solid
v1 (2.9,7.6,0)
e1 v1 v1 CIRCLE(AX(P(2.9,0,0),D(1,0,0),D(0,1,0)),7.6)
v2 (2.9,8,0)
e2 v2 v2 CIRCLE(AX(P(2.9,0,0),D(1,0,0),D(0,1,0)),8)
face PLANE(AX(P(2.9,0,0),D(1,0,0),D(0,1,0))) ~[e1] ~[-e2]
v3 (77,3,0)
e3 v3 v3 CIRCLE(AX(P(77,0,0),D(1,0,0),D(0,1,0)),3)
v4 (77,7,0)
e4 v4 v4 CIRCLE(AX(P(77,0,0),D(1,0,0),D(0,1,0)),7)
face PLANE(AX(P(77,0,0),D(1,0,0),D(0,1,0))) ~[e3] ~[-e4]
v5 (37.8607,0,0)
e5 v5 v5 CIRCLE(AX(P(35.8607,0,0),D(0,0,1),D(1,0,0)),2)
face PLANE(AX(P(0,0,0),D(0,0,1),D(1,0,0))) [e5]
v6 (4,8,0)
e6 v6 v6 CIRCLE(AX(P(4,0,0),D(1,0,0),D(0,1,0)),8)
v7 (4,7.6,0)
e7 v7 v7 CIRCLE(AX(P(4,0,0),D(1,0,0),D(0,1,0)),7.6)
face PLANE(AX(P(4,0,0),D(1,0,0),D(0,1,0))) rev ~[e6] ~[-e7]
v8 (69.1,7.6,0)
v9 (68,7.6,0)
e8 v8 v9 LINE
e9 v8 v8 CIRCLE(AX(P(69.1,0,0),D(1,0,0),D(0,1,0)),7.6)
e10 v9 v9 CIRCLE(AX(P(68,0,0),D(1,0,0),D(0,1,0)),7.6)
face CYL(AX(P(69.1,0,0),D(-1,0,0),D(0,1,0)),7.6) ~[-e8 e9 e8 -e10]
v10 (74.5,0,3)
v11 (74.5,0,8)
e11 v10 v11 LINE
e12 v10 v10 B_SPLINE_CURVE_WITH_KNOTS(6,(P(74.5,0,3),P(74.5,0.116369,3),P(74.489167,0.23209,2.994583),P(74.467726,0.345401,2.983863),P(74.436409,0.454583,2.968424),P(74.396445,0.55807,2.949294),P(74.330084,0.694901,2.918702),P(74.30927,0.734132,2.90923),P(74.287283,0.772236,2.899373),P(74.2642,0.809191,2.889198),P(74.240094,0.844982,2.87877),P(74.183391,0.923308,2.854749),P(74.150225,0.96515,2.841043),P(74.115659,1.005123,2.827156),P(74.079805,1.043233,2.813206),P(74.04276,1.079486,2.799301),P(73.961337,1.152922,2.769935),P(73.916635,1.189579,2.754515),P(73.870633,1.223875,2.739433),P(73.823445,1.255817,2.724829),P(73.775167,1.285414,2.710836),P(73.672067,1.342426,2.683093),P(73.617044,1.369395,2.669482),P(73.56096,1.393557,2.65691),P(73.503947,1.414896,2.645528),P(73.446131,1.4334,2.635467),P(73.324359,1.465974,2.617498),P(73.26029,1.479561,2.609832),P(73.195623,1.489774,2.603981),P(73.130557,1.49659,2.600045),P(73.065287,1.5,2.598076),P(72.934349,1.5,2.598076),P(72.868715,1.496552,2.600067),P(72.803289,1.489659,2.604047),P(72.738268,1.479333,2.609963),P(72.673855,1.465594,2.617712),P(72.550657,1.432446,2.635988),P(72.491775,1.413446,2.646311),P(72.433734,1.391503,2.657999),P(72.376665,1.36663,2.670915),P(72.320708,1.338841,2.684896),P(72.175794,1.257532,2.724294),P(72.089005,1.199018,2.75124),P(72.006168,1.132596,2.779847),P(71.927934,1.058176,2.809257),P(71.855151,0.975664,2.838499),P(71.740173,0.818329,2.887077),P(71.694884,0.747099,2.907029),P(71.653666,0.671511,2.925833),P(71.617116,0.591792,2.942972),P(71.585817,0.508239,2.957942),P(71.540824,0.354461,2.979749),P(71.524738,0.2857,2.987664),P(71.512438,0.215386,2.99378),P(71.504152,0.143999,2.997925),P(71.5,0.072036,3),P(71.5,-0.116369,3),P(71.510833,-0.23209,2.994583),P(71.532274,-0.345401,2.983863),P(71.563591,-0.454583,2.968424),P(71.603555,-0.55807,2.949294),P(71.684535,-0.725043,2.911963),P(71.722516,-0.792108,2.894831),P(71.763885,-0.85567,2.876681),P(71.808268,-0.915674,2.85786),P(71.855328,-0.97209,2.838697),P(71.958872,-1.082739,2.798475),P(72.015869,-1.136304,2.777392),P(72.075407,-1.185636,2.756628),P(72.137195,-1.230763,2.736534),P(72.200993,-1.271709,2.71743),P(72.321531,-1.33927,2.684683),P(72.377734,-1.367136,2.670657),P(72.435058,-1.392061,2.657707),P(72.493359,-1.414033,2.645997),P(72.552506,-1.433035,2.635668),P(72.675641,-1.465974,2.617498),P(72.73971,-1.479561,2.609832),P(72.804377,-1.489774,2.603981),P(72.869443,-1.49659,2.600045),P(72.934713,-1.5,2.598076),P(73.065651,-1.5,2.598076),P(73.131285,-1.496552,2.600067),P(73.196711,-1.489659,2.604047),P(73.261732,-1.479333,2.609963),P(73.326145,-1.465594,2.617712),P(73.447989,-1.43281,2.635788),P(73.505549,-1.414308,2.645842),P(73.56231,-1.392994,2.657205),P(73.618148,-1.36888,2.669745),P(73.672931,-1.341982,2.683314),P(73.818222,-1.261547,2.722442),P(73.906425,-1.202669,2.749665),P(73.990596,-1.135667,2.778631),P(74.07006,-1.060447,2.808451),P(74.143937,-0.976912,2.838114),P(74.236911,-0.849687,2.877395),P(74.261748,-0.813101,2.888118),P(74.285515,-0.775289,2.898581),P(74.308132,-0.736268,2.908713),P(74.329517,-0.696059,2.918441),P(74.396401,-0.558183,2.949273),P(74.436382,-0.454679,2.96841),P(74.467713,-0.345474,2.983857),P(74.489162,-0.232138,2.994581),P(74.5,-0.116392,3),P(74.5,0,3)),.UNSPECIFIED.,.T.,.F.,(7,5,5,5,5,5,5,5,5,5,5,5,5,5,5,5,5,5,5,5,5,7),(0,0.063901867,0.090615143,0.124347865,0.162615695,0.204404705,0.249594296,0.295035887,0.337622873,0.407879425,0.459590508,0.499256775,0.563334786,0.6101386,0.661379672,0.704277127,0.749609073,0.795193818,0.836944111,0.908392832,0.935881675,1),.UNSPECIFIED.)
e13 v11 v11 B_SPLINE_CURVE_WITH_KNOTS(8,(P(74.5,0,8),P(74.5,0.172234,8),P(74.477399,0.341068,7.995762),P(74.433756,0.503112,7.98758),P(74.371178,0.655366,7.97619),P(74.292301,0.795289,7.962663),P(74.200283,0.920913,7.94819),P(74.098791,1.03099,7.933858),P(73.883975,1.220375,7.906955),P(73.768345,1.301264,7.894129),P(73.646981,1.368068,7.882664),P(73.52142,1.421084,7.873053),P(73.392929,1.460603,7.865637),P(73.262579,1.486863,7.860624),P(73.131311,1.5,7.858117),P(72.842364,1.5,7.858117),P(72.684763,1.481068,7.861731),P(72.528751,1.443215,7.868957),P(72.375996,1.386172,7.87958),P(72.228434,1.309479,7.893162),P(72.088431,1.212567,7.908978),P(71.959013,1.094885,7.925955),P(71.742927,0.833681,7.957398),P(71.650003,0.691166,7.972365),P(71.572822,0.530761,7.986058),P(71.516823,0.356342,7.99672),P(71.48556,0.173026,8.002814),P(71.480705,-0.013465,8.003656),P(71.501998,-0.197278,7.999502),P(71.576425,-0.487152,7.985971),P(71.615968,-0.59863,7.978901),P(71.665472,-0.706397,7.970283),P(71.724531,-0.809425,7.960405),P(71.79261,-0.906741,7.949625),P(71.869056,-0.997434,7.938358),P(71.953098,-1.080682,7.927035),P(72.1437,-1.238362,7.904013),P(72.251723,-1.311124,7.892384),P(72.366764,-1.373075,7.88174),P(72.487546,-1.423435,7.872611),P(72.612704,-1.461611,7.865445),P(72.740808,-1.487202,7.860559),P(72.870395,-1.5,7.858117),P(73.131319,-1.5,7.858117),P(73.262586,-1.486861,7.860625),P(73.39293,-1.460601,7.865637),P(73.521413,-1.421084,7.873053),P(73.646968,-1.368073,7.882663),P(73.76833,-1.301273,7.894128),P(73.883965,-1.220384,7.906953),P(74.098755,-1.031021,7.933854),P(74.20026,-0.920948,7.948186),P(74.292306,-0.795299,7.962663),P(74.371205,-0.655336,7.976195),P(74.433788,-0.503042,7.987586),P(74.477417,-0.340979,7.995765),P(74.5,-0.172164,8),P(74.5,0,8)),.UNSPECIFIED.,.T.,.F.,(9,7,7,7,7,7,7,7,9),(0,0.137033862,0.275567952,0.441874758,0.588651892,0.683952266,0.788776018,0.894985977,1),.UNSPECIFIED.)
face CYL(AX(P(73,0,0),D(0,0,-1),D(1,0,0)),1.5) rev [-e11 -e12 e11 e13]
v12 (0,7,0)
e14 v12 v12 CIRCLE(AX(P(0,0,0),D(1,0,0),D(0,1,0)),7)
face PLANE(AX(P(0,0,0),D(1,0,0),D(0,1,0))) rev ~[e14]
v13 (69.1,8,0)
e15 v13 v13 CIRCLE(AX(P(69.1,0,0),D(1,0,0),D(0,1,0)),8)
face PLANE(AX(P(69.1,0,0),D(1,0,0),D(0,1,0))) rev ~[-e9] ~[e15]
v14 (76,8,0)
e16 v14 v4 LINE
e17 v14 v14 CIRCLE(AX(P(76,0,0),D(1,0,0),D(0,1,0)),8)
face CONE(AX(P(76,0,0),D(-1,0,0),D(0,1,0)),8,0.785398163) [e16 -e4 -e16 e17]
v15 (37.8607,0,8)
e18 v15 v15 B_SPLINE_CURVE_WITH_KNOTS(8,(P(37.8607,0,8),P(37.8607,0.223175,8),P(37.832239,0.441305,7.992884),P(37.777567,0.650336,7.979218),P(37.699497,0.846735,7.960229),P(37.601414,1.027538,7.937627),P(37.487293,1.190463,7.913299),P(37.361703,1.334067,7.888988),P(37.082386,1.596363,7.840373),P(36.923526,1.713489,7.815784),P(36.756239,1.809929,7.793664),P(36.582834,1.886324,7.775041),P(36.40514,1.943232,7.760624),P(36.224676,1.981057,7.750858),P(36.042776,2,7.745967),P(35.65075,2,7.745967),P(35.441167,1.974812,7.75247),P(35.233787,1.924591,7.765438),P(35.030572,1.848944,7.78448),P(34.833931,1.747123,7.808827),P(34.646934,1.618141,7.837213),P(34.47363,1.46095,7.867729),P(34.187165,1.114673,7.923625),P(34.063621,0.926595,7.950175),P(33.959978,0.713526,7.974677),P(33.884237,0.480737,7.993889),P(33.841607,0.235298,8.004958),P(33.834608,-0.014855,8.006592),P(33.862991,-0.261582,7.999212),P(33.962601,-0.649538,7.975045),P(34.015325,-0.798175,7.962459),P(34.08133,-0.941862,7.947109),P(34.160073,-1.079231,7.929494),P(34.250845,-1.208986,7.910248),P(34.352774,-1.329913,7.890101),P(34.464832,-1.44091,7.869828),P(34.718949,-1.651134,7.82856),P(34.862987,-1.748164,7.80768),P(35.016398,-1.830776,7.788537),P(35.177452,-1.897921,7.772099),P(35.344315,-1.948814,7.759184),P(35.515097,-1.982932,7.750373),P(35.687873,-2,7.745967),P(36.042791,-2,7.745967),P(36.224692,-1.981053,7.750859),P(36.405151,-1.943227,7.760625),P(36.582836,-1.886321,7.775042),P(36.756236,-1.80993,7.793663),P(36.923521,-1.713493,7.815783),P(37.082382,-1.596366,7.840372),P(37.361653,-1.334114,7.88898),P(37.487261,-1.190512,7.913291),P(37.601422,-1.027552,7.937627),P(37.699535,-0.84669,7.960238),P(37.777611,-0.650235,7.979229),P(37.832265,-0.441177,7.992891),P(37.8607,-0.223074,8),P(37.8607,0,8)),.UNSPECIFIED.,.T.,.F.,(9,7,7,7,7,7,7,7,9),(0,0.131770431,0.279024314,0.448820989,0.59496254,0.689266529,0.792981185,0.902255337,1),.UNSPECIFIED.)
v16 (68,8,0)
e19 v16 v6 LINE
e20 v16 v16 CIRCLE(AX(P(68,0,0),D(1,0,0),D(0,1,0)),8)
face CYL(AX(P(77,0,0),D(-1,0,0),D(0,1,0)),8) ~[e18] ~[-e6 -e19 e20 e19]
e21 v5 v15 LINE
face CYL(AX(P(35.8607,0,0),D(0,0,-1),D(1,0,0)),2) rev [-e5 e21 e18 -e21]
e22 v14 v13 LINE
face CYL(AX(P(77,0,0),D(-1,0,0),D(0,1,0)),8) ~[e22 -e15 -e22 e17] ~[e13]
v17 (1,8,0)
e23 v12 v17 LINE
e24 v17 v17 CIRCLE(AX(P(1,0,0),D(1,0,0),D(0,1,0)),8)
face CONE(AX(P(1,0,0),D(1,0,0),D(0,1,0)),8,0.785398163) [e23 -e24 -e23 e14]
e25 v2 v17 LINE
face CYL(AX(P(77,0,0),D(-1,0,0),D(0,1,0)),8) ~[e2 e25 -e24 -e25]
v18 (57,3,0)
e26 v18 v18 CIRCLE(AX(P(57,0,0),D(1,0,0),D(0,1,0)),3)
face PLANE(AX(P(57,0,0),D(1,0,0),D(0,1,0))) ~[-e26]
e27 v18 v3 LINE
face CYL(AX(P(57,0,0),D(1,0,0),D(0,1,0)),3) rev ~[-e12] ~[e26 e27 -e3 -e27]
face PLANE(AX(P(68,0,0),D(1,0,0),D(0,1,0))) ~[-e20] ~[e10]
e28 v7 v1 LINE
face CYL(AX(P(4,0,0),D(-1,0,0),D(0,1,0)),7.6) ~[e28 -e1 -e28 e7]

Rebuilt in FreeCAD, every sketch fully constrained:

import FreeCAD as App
import Part
import Sketcher

V = App.Vector


def edges_at(feature, points):
    """Names of the edges that pass closest to the given points."""
    edges = feature.Shape.Edges
    near = lambda p: min(range(len(edges)), key=lambda i: edges[i].distToShape(Part.Vertex(*p))[0])
    return sorted({f"Edge{near(p) + 1}" for p in points})

doc = App.newDocument("Part")
body = doc.addObject("PartDesign::Body", "Body")

# Sketch on XY plane
sketch1 = doc.addObject("Sketcher::SketchObject", "Sketch")
body.addObject(sketch1)
sketch1.AttachmentSupport = (doc.XY_Plane, [""])
sketch1.MapMode = "FlatFace"
sketch1.addGeometry([
    Part.LineSegment(V(0, 8, 0), V(0, 0, 0)),  # 0
    Part.LineSegment(V(0, 0, 0), V(57, 0, 0)),  # 1
    Part.LineSegment(V(57, 0, 0), V(57, 3, 0)),  # 2
    Part.LineSegment(V(57, 3, 0), V(77, 3, 0)),  # 3
    Part.LineSegment(V(77, 3, 0), V(77, 8, 0)),  # 4
    Part.LineSegment(V(77, 8, 0), V(69.1, 8, 0)),  # 5
    Part.LineSegment(V(69.1, 8, 0), V(69.1, 7.6, 0)),  # 6
    Part.LineSegment(V(69.1, 7.6, 0), V(68, 7.6, 0)),  # 7
    Part.LineSegment(V(68, 7.6, 0), V(68, 8, 0)),  # 8
    Part.LineSegment(V(68, 8, 0), V(4, 8, 0)),  # 9
    Part.LineSegment(V(4, 8, 0), V(4, 7.6, 0)),  # 10
    Part.LineSegment(V(4, 7.6, 0), V(2.9, 7.6, 0)),  # 11
    Part.LineSegment(V(2.9, 7.6, 0), V(2.9, 8, 0)),  # 12
    Part.LineSegment(V(2.9, 8, 0), V(0, 8, 0)),  # 13
], False)
sketch1.addConstraint([
    Sketcher.Constraint("Coincident", 0, 2, 1, 1),
    Sketcher.Constraint("Coincident", 1, 2, 2, 1),
    Sketcher.Constraint("Coincident", 2, 2, 3, 1),
    Sketcher.Constraint("Coincident", 3, 2, 4, 1),
    Sketcher.Constraint("Coincident", 4, 2, 5, 1),
    Sketcher.Constraint("Coincident", 5, 2, 6, 1),
    Sketcher.Constraint("Coincident", 6, 2, 7, 1),
    Sketcher.Constraint("Coincident", 7, 2, 8, 1),
    Sketcher.Constraint("Coincident", 8, 2, 9, 1),
    Sketcher.Constraint("Coincident", 9, 2, 10, 1),
    Sketcher.Constraint("Coincident", 10, 2, 11, 1),
    Sketcher.Constraint("Coincident", 11, 2, 12, 1),
    Sketcher.Constraint("Coincident", 12, 2, 13, 1),
    Sketcher.Constraint("Coincident", 13, 2, 0, 1),
    Sketcher.Constraint("Vertical", 0),
    Sketcher.Constraint("Horizontal", 1),
    Sketcher.Constraint("Vertical", 2),
    Sketcher.Constraint("Horizontal", 3),
    Sketcher.Constraint("Vertical", 4),
    Sketcher.Constraint("Horizontal", 5),
    Sketcher.Constraint("Vertical", 6),
    Sketcher.Constraint("Horizontal", 7),
    Sketcher.Constraint("Vertical", 8),
    Sketcher.Constraint("Horizontal", 9),
    Sketcher.Constraint("Vertical", 10),
    Sketcher.Constraint("Horizontal", 11),
    Sketcher.Constraint("Vertical", 12),
    Sketcher.Constraint("Horizontal", 13),
    Sketcher.Constraint("Coincident", 0, 2, -1, 1),
    Sketcher.Constraint("Horizontal", 5, 2, 8, 2),
    Sketcher.Constraint("Horizontal", 7, 2, 10, 2),
    Sketcher.Constraint("Horizontal", 9, 2, 12, 2),
    Sketcher.Constraint("Equal", 7, 11),
    Sketcher.Constraint("DistanceX", 3, 1, 3, 2, 20.0),
    Sketcher.Constraint("DistanceY", 0, 2, 0, 1, 8.0),
    Sketcher.Constraint("DistanceY", 2, 1, 2, 2, 3.0),
    Sketcher.Constraint("DistanceX", 5, 2, 5, 1, 7.9),
    Sketcher.Constraint("DistanceX", 7, 2, 7, 1, 1.1),
    Sketcher.Constraint("DistanceX", 13, 2, 13, 1, 2.9),
    Sketcher.Constraint("DistanceX", -1, 1, 3, 2, 77.0),
    Sketcher.Constraint("DistanceY", -1, 1, 6, 2, 7.6),
])
revolution = doc.addObject("PartDesign::Revolution", "Revolution")
body.addObject(revolution)
revolution.Profile = sketch1
revolution.ReferenceAxis = (sketch1, ["H_Axis"])
revolution.Angle = 360

# Sketch on XY plane
sketch2 = doc.addObject("Sketcher::SketchObject", "Sketch001")
body.addObject(sketch2)
sketch2.AttachmentSupport = (doc.XY_Plane, [""])
sketch2.MapMode = "FlatFace"
sketch2.addGeometry([
    Part.Circle(V(73, 0, 0), V(0, 0, 1), 1.5),
    Part.Circle(V(35.8607, 0, 0), V(0, 0, 1), 2),
], False)
sketch2.addConstraint([
    Sketcher.Constraint("PointOnObject", 0, 3, -1),
    Sketcher.Constraint("PointOnObject", 1, 3, -1),
    Sketcher.Constraint("Diameter", 0, 3.0),
    Sketcher.Constraint("Diameter", 1, 4.0),
    Sketcher.Constraint("DistanceX", -1, 1, 0, 3, 73.0),
    Sketcher.Constraint("DistanceX", -1, 1, 1, 3, 35.8607),
])
pocket1 = doc.addObject("PartDesign::Pocket", "Pocket")
body.addObject(pocket1)
pocket1.Profile = sketch2
pocket1.Length = 10
pocket1.Reversed = True
doc.recompute()

chamfer = doc.addObject("PartDesign::Chamfer", "Chamfer")
body.addObject(chamfer)
chamfer.Base = (pocket1, edges_at(pocket1, [(0, -8, 0), (77, -8, 0)]))
chamfer.Size = 1

doc.recompute()
